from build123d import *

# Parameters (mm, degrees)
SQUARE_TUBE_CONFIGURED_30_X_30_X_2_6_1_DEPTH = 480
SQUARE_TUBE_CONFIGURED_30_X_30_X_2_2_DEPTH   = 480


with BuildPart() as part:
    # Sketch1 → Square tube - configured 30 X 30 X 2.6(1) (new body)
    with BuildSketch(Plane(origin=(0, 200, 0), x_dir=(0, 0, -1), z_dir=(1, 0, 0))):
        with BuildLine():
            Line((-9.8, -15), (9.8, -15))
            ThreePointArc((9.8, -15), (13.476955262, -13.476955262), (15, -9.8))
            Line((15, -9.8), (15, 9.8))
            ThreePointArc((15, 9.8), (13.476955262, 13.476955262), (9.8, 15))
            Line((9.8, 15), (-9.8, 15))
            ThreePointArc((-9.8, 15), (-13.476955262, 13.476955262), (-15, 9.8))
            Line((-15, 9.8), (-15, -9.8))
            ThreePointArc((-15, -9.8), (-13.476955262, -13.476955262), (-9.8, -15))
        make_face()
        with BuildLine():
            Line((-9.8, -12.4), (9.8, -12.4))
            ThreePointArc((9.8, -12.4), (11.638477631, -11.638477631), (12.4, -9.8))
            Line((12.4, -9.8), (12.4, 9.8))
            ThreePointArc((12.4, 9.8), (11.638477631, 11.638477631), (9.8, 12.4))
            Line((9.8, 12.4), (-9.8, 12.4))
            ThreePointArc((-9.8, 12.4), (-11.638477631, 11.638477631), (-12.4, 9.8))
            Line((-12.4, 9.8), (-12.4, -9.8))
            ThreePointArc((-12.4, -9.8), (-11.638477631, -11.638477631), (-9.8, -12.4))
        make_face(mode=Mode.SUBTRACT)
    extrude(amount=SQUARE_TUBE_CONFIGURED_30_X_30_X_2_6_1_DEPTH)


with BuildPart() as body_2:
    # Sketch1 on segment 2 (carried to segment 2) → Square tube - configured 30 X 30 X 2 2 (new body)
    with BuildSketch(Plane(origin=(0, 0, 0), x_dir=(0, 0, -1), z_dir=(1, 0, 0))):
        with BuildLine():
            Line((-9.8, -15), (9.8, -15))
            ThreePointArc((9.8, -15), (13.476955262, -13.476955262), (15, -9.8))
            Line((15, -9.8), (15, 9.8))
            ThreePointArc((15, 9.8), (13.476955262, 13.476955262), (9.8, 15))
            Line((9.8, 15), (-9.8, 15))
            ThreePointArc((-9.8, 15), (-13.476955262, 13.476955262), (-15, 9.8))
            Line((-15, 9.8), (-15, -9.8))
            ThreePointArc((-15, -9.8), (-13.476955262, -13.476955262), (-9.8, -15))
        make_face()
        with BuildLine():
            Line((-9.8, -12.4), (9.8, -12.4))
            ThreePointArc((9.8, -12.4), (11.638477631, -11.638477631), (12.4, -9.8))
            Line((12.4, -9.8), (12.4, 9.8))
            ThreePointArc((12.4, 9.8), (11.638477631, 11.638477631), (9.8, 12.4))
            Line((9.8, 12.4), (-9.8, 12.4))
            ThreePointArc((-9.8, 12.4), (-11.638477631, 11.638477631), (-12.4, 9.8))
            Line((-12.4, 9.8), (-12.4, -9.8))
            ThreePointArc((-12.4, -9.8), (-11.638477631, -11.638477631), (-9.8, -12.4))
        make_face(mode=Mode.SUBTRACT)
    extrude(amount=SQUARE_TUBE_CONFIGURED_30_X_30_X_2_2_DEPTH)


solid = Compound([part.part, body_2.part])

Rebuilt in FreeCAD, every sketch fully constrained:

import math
import FreeCAD as App
import Part
import Sketcher
from FreeCAD import Vector
Q = App.Units.Quantity

doc = App.newDocument("Part")
body = doc.addObject("PartDesign::Body", "Body")

sketch1 = body.newObject("Sketcher::SketchObject", "Sketch")
sketch1.AttachmentSupport = (doc.getObject("YZ_Plane"), [""])
sketch1.MapMode = "FlatFace"
sketch1.addGeometry([
    Part.LineSegment(Vector(185, 9.8, 0), Vector(185, -9.8, 0)),
    Part.ArcOfCircle(Part.Circle(Vector(190.2, -9.8, 0), Vector(0, 0, 1), 5.2), math.radians(-180), math.radians(-90)),
    Part.LineSegment(Vector(190.2, -15, 0), Vector(209.8, -15, 0)),
    Part.ArcOfCircle(Part.Circle(Vector(209.8, -9.8, 0), Vector(0, 0, 1), 5.2), math.radians(-90), math.radians(0)),
    Part.LineSegment(Vector(215, -9.8, 0), Vector(215, 9.8, 0)),
    Part.ArcOfCircle(Part.Circle(Vector(209.8, 9.8, 0), Vector(0, 0, 1), 5.2), math.radians(0), math.radians(90)),
    Part.LineSegment(Vector(209.8, 15, 0), Vector(190.2, 15, 0)),
    Part.ArcOfCircle(Part.Circle(Vector(190.2, 9.8, 0), Vector(0, 0, 1), 5.2), math.radians(90), math.radians(180)),
    Part.LineSegment(Vector(187.6, -9.8, 0), Vector(187.6, 9.8, 0)),
    Part.ArcOfCircle(Part.Circle(Vector(190.2, 9.8, 0), Vector(0, 0, 1), 2.6), math.radians(90), math.radians(180)),
    Part.LineSegment(Vector(190.2, 12.4, 0), Vector(209.8, 12.4, 0)),
    Part.ArcOfCircle(Part.Circle(Vector(209.8, 9.8, 0), Vector(0, 0, 1), 2.6), math.radians(0), math.radians(90)),
    Part.LineSegment(Vector(212.4, 9.8, 0), Vector(212.4, -9.8, 0)),
    Part.ArcOfCircle(Part.Circle(Vector(209.8, -9.8, 0), Vector(0, 0, 1), 2.6), math.radians(-90), math.radians(0)),
    Part.LineSegment(Vector(209.8, -12.4, 0), Vector(190.2, -12.4, 0)),
    Part.ArcOfCircle(Part.Circle(Vector(190.2, -9.8, 0), Vector(0, 0, 1), 2.6), math.radians(180), math.radians(270)),
], False)
sketch1.addConstraint([
    Sketcher.Constraint("Tangent", 0, 2, 1, 1),
    Sketcher.Constraint("Tangent", 1, 2, 2, 1),
    Sketcher.Constraint("Tangent", 2, 2, 3, 1),
    Sketcher.Constraint("Tangent", 3, 2, 4, 1),
    Sketcher.Constraint("Tangent", 4, 2, 5, 1),
    Sketcher.Constraint("Tangent", 5, 2, 6, 1),
    Sketcher.Constraint("Tangent", 6, 2, 7, 1),
    Sketcher.Constraint("Tangent", 7, 2, 0, 1),
    Sketcher.Constraint("Tangent", 8, 2, 9, 2),
    Sketcher.Constraint("Tangent", 9, 1, 10, 1),
    Sketcher.Constraint("Tangent", 10, 2, 11, 2),
    Sketcher.Constraint("Tangent", 11, 1, 12, 1),
    Sketcher.Constraint("Tangent", 12, 2, 13, 2),
    Sketcher.Constraint("Tangent", 13, 1, 14, 1),
    Sketcher.Constraint("Tangent", 14, 2, 15, 2),
    Sketcher.Constraint("Tangent", 15, 1, 8, 1),
    Sketcher.Constraint("Vertical", 0),
    Sketcher.Constraint("Horizontal", 2),
    Sketcher.Constraint("Vertical", 4),
    Sketcher.Constraint("Horizontal", 6),
    Sketcher.Constraint("Vertical", 8),
    Sketcher.Constraint("Horizontal", 10),
    Sketcher.Constraint("Vertical", 12),
    Sketcher.Constraint("Horizontal", 14),
    Sketcher.Constraint("Coincident", 9, 3, 7, 3),
    Sketcher.Constraint("Coincident", 11, 3, 5, 3),
    Sketcher.Constraint("Coincident", 13, 3, 3, 3),
    Sketcher.Constraint("Equal", 1, 3),
    Sketcher.Constraint("Equal", 3, 5),
    Sketcher.Constraint("Equal", 5, 7),
    Sketcher.Constraint("Equal", 13, 15),
    Sketcher.Constraint("Equal", 14, 0),
    Sketcher.Constraint("Radius", 1, Q("5.2 mm")),
    Sketcher.Constraint("Radius", 9, Q("2.6 mm")),
    Sketcher.Constraint("DistanceX", 2, 1, 2, 2, Q("19.6 mm")),
    Sketcher.Constraint("DistanceX", -1, 1, 0, 2, Q("185 mm")),
    Sketcher.Constraint("DistanceY", 1, 2, -1, 1, Q("15 mm")),
])
pad1 = body.newObject("PartDesign::Pad", "Pad")
pad1.Profile = sketch1
pad1.Length = 480
body2 = doc.addObject("PartDesign::Body", "Body001")

sketch2 = body2.newObject("Sketcher::SketchObject", "Sketch001")
sketch2.AttachmentSupport = (doc.getObject("YZ_Plane001"), [""])
sketch2.MapMode = "FlatFace"
sketch2.addGeometry([
    Part.LineSegment(Vector(-15, 9.8, 0), Vector(-15, -9.8, 0)),
    Part.ArcOfCircle(Part.Circle(Vector(-9.8, -9.8, 0), Vector(0, 0, 1), 5.2), math.radians(-180), math.radians(-90)),
    Part.LineSegment(Vector(-9.8, -15, 0), Vector(9.8, -15, 0)),
    Part.ArcOfCircle(Part.Circle(Vector(9.8, -9.8, 0), Vector(0, 0, 1), 5.2), math.radians(-90), math.radians(0)),
    Part.LineSegment(Vector(15, -9.8, 0), Vector(15, 9.8, 0)),
    Part.ArcOfCircle(Part.Circle(Vector(9.8, 9.8, 0), Vector(0, 0, 1), 5.2), math.radians(0), math.radians(90)),
    Part.LineSegment(Vector(9.8, 15, 0), Vector(-9.8, 15, 0)),
    Part.ArcOfCircle(Part.Circle(Vector(-9.8, 9.8, 0), Vector(0, 0, 1), 5.2), math.radians(90), math.radians(180)),
    Part.LineSegment(Vector(-12.4, -9.8, 0), Vector(-12.4, 9.8, 0)),
    Part.ArcOfCircle(Part.Circle(Vector(-9.8, 9.8, 0), Vector(0, 0, 1), 2.6), math.radians(90), math.radians(180)),
    Part.LineSegment(Vector(-9.8, 12.4, 0), Vector(9.8, 12.4, 0)),
    Part.ArcOfCircle(Part.Circle(Vector(9.8, 9.8, 0), Vector(0, 0, 1), 2.6), math.radians(0), math.radians(90)),
    Part.LineSegment(Vector(12.4, 9.8, 0), Vector(12.4, -9.8, 0)),
    Part.ArcOfCircle(Part.Circle(Vector(9.8, -9.8, 0), Vector(0, 0, 1), 2.6), math.radians(-90), math.radians(0)),
    Part.LineSegment(Vector(9.8, -12.4, 0), Vector(-9.8, -12.4, 0)),
    Part.ArcOfCircle(Part.Circle(Vector(-9.8, -9.8, 0), Vector(0, 0, 1), 2.6), math.radians(180), math.radians(270)),
], False)
sketch2.addConstraint([
    Sketcher.Constraint("Tangent", 0, 2, 1, 1),
    Sketcher.Constraint("Tangent", 1, 2, 2, 1),
    Sketcher.Constraint("Tangent", 2, 2, 3, 1),
    Sketcher.Constraint("Tangent", 3, 2, 4, 1),
    Sketcher.Constraint("Tangent", 4, 2, 5, 1),
    Sketcher.Constraint("Tangent", 5, 2, 6, 1),
    Sketcher.Constraint("Tangent", 6, 2, 7, 1),
    Sketcher.Constraint("Tangent", 7, 2, 0, 1),
    Sketcher.Constraint("Tangent", 8, 2, 9, 2),
    Sketcher.Constraint("Tangent", 9, 1, 10, 1),
    Sketcher.Constraint("Tangent", 10, 2, 11, 2),
    Sketcher.Constraint("Tangent", 11, 1, 12, 1),
    Sketcher.Constraint("Tangent", 12, 2, 13, 2),
    Sketcher.Constraint("Tangent", 13, 1, 14, 1),
    Sketcher.Constraint("Tangent", 14, 2, 15, 2),
    Sketcher.Constraint("Tangent", 15, 1, 8, 1),
    Sketcher.Constraint("Vertical", 0),
    Sketcher.Constraint("Horizontal", 2),
    Sketcher.Constraint("Vertical", 4),
    Sketcher.Constraint("Horizontal", 6),
    Sketcher.Constraint("Vertical", 8),
    Sketcher.Constraint("Horizontal", 10),
    Sketcher.Constraint("Vertical", 12),
    Sketcher.Constraint("Horizontal", 14),
    Sketcher.Constraint("Coincident", 9, 3, 7, 3),
    Sketcher.Constraint("Coincident", 11, 3, 5, 3),
    Sketcher.Constraint("Coincident", 13, 3, 3, 3),
    Sketcher.Constraint("Equal", 1, 3),
    Sketcher.Constraint("Equal", 3, 5),
    Sketcher.Constraint("Equal", 5, 7),
    Sketcher.Constraint("Equal", 13, 15),
    Sketcher.Constraint("Symmetric", 1, 3, 5, 3, -1, 1),
    Sketcher.Constraint("Equal", 14, 0),
    Sketcher.Constraint("Radius", 1, Q("5.2 mm")),
    Sketcher.Constraint("Radius", 9, Q("2.6 mm")),
    Sketcher.Constraint("DistanceX", 2, 1, 2, 2, Q("19.6 mm")),
])
pad2 = body2.newObject("PartDesign::Pad", "Pad001")
pad2.Profile = sketch2
pad2.Length = 480

doc.recompute()
